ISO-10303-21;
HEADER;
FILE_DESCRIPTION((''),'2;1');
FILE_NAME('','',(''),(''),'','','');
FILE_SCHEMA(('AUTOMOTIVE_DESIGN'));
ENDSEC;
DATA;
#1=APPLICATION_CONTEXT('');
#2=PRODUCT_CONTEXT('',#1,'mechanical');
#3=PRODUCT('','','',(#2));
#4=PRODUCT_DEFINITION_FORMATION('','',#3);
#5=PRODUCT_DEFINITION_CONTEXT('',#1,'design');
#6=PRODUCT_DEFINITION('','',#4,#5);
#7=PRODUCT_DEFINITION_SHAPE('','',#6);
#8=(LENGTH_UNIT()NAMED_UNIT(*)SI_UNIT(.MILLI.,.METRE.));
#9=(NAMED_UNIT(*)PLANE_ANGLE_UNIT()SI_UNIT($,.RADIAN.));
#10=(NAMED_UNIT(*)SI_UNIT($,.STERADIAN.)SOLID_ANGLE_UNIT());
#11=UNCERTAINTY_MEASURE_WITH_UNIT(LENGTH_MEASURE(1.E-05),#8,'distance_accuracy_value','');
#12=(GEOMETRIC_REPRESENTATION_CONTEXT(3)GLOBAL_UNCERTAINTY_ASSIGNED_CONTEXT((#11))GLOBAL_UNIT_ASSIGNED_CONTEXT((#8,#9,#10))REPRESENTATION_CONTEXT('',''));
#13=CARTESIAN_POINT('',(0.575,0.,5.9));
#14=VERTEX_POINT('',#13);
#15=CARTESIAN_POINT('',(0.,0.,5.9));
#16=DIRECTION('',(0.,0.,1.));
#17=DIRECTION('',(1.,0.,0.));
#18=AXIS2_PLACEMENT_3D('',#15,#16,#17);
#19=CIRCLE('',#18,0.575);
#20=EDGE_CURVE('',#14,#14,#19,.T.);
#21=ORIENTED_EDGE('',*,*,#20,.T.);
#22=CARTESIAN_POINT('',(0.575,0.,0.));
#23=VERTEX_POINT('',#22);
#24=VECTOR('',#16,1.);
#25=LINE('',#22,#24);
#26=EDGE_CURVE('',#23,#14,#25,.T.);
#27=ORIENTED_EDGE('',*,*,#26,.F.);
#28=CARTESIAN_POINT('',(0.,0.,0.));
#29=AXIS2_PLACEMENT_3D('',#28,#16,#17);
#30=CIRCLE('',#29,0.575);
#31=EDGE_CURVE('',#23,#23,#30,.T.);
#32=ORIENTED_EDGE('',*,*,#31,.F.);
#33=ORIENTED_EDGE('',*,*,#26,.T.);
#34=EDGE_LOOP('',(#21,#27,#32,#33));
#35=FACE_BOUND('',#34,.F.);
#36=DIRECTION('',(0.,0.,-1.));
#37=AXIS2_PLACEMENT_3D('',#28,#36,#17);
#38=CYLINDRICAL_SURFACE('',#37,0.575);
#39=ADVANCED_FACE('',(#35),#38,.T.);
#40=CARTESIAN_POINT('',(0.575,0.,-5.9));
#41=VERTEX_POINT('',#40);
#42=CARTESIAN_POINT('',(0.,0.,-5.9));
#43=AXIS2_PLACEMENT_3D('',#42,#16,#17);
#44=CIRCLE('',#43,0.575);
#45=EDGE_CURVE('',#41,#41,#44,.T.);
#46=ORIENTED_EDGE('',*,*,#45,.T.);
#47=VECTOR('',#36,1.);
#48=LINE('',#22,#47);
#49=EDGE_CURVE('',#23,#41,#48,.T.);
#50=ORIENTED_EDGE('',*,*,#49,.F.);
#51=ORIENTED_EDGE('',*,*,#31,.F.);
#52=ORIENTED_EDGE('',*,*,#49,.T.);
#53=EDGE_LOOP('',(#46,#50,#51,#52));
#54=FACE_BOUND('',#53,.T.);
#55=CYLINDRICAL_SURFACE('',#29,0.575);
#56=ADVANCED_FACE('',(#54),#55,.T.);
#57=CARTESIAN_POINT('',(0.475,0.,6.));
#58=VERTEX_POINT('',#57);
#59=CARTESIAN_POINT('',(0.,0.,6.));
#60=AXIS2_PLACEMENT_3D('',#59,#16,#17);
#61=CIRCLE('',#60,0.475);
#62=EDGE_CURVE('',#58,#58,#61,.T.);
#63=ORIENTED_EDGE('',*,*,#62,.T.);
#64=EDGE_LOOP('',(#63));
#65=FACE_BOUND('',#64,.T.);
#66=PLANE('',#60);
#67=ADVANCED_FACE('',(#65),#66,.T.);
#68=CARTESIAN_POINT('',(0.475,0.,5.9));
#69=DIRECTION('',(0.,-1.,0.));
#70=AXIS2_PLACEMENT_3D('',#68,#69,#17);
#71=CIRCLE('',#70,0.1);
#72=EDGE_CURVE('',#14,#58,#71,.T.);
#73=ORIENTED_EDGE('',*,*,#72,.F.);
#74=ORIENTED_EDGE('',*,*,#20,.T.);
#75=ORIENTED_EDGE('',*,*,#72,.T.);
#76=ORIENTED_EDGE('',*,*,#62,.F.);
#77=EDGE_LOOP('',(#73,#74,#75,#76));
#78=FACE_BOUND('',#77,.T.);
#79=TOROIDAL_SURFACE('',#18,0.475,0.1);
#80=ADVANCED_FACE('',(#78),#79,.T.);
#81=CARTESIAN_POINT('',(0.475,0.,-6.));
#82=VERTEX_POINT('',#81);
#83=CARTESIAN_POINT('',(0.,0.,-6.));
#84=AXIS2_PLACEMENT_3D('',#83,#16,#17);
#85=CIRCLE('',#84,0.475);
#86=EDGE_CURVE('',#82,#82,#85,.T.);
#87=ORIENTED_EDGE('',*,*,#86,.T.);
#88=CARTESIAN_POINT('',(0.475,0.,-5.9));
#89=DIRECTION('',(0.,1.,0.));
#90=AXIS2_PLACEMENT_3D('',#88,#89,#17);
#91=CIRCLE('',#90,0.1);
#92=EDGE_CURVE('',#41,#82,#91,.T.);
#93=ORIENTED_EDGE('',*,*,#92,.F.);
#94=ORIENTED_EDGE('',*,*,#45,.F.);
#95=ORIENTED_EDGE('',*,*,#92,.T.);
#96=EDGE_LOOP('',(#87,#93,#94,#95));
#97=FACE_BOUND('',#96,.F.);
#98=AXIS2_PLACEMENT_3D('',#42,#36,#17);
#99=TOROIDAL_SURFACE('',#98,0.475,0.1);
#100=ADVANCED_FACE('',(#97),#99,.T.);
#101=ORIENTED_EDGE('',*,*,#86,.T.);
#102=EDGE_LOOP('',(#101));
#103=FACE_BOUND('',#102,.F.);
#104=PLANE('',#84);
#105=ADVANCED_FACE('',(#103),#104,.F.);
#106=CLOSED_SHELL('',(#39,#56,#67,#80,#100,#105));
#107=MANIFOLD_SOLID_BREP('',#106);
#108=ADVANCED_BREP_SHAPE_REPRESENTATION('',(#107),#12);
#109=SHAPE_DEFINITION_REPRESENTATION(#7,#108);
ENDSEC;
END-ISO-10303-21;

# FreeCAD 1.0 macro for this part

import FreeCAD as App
import Part
import Sketcher
from FreeCAD import Vector


def edges_at(feature, points):
    """Names of the edges that pass closest to the given points."""
    edges = feature.Shape.Edges
    near = lambda p: min(range(len(edges)), key=lambda i: edges[i].distToShape(Part.Vertex(*p))[0])
    return sorted({f"Edge{near(p) + 1}" for p in points})

doc = App.newDocument("Part")
body = doc.addObject("PartDesign::Body", "Body")

# Sketch on XY plane
sketch1 = body.newObject("Sketcher::SketchObject", "Sketch")
sketch1.AttachmentSupport = (doc.getObject("XY_Plane"), [""])
sketch1.MapMode = "FlatFace"
sketch1.addGeometry(Part.Circle(Vector(0, 0, 0), Vector(0, 0, 1), 0.6), False)
sketch1.addConstraint([
    Sketcher.Constraint("Coincident", 0, 3, -1, 1),
    Sketcher.Constraint("Diameter", 0, 1.15),
])
pad1 = body.newObject("PartDesign::Pad", "Pad")
pad1.Profile = sketch1
pad1.Length = 12
pad1.Midplane = True
doc.recompute()

fillet = body.newObject("PartDesign::Fillet", "Fillet")
fillet.Base = (pad1, edges_at(pad1, [(-0.575, 0, 6), (-0.575, 0, -6)]))
fillet.Radius = 0.1

doc.recompute()
